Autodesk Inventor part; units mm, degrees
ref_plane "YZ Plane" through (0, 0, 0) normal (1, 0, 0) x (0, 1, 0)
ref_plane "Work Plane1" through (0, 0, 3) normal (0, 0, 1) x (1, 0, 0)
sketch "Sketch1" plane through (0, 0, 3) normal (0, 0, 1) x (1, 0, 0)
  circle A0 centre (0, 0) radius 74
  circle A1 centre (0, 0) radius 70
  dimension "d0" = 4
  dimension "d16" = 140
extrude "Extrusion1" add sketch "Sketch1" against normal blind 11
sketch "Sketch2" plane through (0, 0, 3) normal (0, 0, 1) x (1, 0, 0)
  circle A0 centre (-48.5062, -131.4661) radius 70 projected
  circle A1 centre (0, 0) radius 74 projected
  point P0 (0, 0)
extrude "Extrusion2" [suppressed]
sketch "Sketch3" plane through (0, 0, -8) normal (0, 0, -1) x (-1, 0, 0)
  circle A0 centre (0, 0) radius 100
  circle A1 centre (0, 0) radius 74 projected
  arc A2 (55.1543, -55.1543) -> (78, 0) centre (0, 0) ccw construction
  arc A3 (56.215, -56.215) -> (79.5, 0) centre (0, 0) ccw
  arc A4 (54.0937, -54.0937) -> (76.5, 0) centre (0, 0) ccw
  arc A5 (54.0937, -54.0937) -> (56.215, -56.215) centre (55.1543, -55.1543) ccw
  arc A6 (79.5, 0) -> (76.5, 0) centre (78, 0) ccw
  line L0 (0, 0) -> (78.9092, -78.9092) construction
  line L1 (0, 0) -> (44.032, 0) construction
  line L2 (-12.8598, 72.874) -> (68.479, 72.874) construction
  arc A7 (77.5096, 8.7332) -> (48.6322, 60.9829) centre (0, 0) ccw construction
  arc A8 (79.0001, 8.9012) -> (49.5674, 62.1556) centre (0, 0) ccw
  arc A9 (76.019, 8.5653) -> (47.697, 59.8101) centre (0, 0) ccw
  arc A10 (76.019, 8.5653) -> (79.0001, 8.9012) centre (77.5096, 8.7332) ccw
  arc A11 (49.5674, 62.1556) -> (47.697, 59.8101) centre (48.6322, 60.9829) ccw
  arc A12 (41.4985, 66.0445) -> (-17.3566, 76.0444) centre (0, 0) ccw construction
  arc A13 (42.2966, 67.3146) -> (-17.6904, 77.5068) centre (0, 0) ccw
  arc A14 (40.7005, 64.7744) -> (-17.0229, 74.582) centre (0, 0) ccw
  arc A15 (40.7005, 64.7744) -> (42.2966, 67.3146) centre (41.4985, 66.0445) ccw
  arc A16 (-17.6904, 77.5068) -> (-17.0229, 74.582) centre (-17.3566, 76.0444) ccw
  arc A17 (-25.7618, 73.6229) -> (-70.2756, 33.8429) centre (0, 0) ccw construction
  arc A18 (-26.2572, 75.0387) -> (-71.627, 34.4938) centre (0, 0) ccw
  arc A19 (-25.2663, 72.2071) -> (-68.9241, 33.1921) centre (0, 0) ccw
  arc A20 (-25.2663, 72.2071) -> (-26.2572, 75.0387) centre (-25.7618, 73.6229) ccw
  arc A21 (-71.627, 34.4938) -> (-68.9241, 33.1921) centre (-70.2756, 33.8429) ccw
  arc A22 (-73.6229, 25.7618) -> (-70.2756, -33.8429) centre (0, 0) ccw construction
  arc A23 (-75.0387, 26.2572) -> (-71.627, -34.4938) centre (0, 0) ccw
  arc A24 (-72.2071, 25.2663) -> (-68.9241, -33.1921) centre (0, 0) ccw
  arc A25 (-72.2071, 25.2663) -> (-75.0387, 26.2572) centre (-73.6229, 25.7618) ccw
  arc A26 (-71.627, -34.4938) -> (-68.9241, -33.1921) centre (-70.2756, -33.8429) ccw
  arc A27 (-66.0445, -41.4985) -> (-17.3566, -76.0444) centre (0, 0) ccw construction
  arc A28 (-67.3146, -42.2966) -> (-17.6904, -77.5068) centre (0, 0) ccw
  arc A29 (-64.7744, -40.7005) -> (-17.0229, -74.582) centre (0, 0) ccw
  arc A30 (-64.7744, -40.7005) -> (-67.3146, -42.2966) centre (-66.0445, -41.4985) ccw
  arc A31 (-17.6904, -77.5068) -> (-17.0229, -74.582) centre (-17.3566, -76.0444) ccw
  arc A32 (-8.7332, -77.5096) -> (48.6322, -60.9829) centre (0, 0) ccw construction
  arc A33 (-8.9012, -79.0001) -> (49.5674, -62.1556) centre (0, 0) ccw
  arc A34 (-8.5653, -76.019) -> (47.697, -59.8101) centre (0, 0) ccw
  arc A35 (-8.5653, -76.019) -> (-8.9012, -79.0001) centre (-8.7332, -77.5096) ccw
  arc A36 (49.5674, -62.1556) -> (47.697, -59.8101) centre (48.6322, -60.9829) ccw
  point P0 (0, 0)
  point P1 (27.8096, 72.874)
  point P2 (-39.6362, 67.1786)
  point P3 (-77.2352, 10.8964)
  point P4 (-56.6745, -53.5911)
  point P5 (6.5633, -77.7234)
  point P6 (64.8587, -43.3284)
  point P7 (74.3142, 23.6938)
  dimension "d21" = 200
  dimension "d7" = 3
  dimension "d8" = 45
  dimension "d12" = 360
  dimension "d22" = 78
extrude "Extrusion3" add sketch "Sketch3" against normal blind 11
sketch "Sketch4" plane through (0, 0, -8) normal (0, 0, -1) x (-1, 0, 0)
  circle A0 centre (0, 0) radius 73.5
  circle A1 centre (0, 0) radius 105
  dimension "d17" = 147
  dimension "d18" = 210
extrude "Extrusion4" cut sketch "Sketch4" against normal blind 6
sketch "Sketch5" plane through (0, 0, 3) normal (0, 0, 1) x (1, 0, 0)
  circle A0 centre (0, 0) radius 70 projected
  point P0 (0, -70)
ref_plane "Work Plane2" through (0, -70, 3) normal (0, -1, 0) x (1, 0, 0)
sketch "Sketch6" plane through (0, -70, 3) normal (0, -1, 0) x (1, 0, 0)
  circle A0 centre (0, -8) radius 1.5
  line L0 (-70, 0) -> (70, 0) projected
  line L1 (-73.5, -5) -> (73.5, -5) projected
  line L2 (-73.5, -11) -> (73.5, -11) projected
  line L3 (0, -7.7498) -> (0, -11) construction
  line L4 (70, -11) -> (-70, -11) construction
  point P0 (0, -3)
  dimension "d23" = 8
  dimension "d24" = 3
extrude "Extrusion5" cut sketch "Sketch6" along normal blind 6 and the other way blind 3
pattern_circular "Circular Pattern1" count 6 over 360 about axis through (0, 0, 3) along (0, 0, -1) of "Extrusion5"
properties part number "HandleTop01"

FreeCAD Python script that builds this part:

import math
import FreeCAD as App
import Part
import Sketcher

doc = App.newDocument("Part")
params = doc.addObject("Spreadsheet::Sheet", "Params")
for row, (alias, value) in enumerate([
    ("sketch1_diameter", "140 mm"),
    ("sketch1_diameter2", "148 mm"),
    ("pad1_length", "11 mm"),
    ("sketch2_diameter", "200 mm"),
    ("sketch2_radius", "1.5 mm"),
    ("sketch2_radius2", "1.5 mm"),
    ("sketch2_radius3", "1.5 mm"),
    ("sketch2_radius4", "1.5 mm"),
    ("pad2_length", "11 mm"),
    ("sketch3_diameter", "210 mm"),
    ("sketch3_diameter2", "147 mm"),
    ("pocket1_length", "6 mm"),
    ("sketch4_diameter", "3 mm"),
    ("pocket2_length", "6 mm"),
    ("pocket2_length2", "3 mm"),
], start=1):
    params.set(f"A{row}", alias)
    params.set(f"B{row}", "=" + value)
    params.setAlias(f"B{row}", alias)

body = doc.addObject("PartDesign::Body", "Body")

# Sketch on XY plane
sketch1 = body.newObject("Sketcher::SketchObject", "Sketch")
sketch1.AttachmentSupport = (doc.getObject("XY_Plane"), [""])
sketch1.MapMode = "FlatFace"
sketch1.AttachmentOffset = App.Placement(App.Vector(0, 0, 3), App.Rotation())
sketch1.addGeometry([
    Part.Circle(App.Vector(0, 0, 0), App.Vector(0, 0, 1), 74),
    Part.Circle(App.Vector(0, 0, 0), App.Vector(0, 0, 1), 70),
], False)
sketch1.addConstraint([
    Sketcher.Constraint("Coincident", 0, 3, -1, 1),
    Sketcher.Constraint("Coincident", 1, 3, -1, 1),
    Sketcher.Constraint("Diameter", 1, 140.0),
    Sketcher.Constraint("Diameter", 0, 148.0),
])
sketch1.setExpression("Constraints[2]", "Params.sketch1_diameter")
sketch1.setExpression("Constraints[3]", "Params.sketch1_diameter2")
pad1 = body.newObject("PartDesign::Pad", "Pad")
pad1.Profile = sketch1
pad1.setExpression("Length", "Params.pad1_length")
pad1.Reversed = True

# Sketch on XY plane
sketch2 = body.newObject("Sketcher::SketchObject", "Sketch001")
sketch2.AttachmentSupport = (doc.getObject("XY_Plane"), [""])
sketch2.MapMode = "FlatFace"
sketch2.AttachmentOffset = App.Placement(App.Vector(0, 0, -8), App.Rotation())
sketch2.addGeometry([
    Part.Circle(App.Vector(0, 0, 0), App.Vector(0, 0, 1), 100),  # 0
    Part.ArcOfCircle(Part.Circle(App.Vector(0, 0, 0), App.Vector(0, 0, 1), 79.499981), math.radians(-77.142872), math.radians(-32.142878)),  # 1
    Part.ArcOfCircle(Part.Circle(App.Vector(66.0445, -41.4985, 0), App.Vector(0, 0, 1), 1.499986), math.radians(-32.144257), math.radians(147.858977)),  # 2
    Part.ArcOfCircle(Part.Circle(App.Vector(0, 0, 0), App.Vector(0, 0, 1), 76.500044), math.radians(-77.142824), math.radians(-32.142887)),  # 3
    Part.ArcOfCircle(Part.Circle(App.Vector(17.3566, -76.0444, 0), App.Vector(0, 0, 1), 1.500012), math.radians(102.854042), math.radians(282.857766)),  # 4
    Part.ArcOfCircle(Part.Circle(App.Vector(0, 0, 0), App.Vector(0, 0, 1), 79.500049), math.radians(-25.714321), math.radians(19.28573)),  # 5
    Part.ArcOfCircle(Part.Circle(App.Vector(73.6229, 25.7618, 0), App.Vector(0, 0, 1), 1.500003), math.radians(19.285359), math.radians(199.288965)),  # 6
    Part.ArcOfCircle(Part.Circle(App.Vector(0, 0, 0), App.Vector(0, 0, 1), 76.500008), math.radians(-25.714288), math.radians(19.285674)),  # 7
    Part.ArcOfCircle(Part.Circle(App.Vector(70.2756, -33.8429, 0), App.Vector(0, 0, 1), 1.499984), math.radians(154.287369), math.radians(334.282271)),  # 8
    Part.ArcOfCircle(Part.Circle(App.Vector(0, 0, 0), App.Vector(0, 0, 1), 79.499981), math.radians(-128.571408), math.radians(-83.57141)),  # 9
    Part.ArcOfCircle(Part.Circle(App.Vector(8.7332, -77.5096, 0), App.Vector(0, 0, 1), 1.500026), math.radians(-83.569114), math.radians(96.426663)),  # 10
    Part.ArcOfCircle(Part.Circle(App.Vector(0, 0, 0), App.Vector(0, 0, 1), 76.500008), math.radians(-128.57145), math.radians(-83.571417)),  # 11
    Part.ArcOfCircle(Part.Circle(App.Vector(-48.6322, -60.9829, 0), App.Vector(0, 0, 1), 1.499941), math.radians(51.430865), math.radians(231.428483)),  # 12
    Part.ArcOfCircle(Part.Circle(App.Vector(0, 0, 0), App.Vector(0, 0, 1), 79.499981), math.radians(180), math.radians(225)),  # 13
    Part.ArcOfCircle(Part.Circle(App.Vector(-55.1543, -55.1543, 0), App.Vector(0, 0, 1), 1.499915), math.radians(-135), math.radians(45)),  # 14
    Part.ArcOfCircle(Part.Circle(App.Vector(0, 0, 0), App.Vector(0, 0, 1), 76.500008), math.radians(180), math.radians(225)),  # 15
    Part.ArcOfCircle(Part.Circle(App.Vector(-78, 0, 0), App.Vector(0, 0, 1), 1.5), math.radians(0), math.radians(180)),  # 16
    Part.ArcOfCircle(Part.Circle(App.Vector(0, 0, 0), App.Vector(0, 0, 1), 79.500049), math.radians(25.714321), math.radians(70.71427)),  # 17
    Part.ArcOfCircle(Part.Circle(App.Vector(25.7618, 73.6229, 0), App.Vector(0, 0, 1), 1.500003), math.radians(70.714641), math.radians(250.711035)),  # 18
    Part.ArcOfCircle(Part.Circle(App.Vector(0, 0, 0), App.Vector(0, 0, 1), 76.500008), math.radians(25.714288), math.radians(70.714326)),  # 19
    Part.ArcOfCircle(Part.Circle(App.Vector(70.2756, 33.8429, 0), App.Vector(0, 0, 1), 1.499984), math.radians(-154.287369), math.radians(25.717729)),  # 20
    Part.Circle(App.Vector(0, 0, 0), App.Vector(0, 0, 1), 74),  # 21
    Part.ArcOfCircle(Part.Circle(App.Vector(0, 0, 0), App.Vector(0, 0, 1), 79.499981), math.radians(128.571408), math.radians(173.57141)),  # 22
    Part.ArcOfCircle(Part.Circle(App.Vector(-77.5096, 8.7332, 0), App.Vector(0, 0, 1), 1.500026), math.radians(173.569114), math.radians(353.573337)),  # 23
    Part.ArcOfCircle(Part.Circle(App.Vector(0, 0, 0), App.Vector(0, 0, 1), 76.500008), math.radians(128.57145), math.radians(173.571417)),  # 24
    Part.ArcOfCircle(Part.Circle(App.Vector(-48.6322, 60.9829, 0), App.Vector(0, 0, 1), 1.499941), math.radians(-51.430865), math.radians(128.571517)),  # 25
    Part.ArcOfCircle(Part.Circle(App.Vector(0, 0, 0), App.Vector(0, 0, 1), 79.499981), math.radians(77.142872), math.radians(122.142878)),  # 26
    Part.ArcOfCircle(Part.Circle(App.Vector(-41.4985, 66.0445, 0), App.Vector(0, 0, 1), 1.499986), math.radians(122.144257), math.radians(302.141023)),  # 27
    Part.ArcOfCircle(Part.Circle(App.Vector(0, 0, 0), App.Vector(0, 0, 1), 76.500044), math.radians(77.142824), math.radians(122.142887)),  # 28
    Part.ArcOfCircle(Part.Circle(App.Vector(17.3566, 76.0444, 0), App.Vector(0, 0, 1), 1.500012), math.radians(-102.854042), math.radians(77.142234)),  # 29
], False)
sketch2.addConstraint([
    Sketcher.Constraint("Coincident", 1, 2, 2, 1),
    Sketcher.Constraint("Coincident", 2, 2, 3, 2),
    Sketcher.Constraint("Coincident", 3, 1, 4, 1),
    Sketcher.Constraint("Coincident", 4, 2, 1, 1),
    Sketcher.Constraint("Coincident", 5, 2, 6, 1),
    Sketcher.Constraint("Coincident", 6, 2, 7, 2),
    Sketcher.Constraint("Coincident", 7, 1, 8, 1),
    Sketcher.Constraint("Coincident", 8, 2, 5, 1),
    Sketcher.Constraint("Coincident", 9, 2, 10, 1),
    Sketcher.Constraint("Coincident", 10, 2, 11, 2),
    Sketcher.Constraint("Coincident", 11, 1, 12, 1),
    Sketcher.Constraint("Coincident", 12, 2, 9, 1),
    Sketcher.Constraint("Coincident", 13, 2, 14, 1),
    Sketcher.Constraint("Coincident", 14, 2, 15, 2),
    Sketcher.Constraint("Coincident", 15, 1, 16, 1),
    Sketcher.Constraint("Coincident", 16, 2, 13, 1),
    Sketcher.Constraint("Coincident", 17, 2, 18, 1),
    Sketcher.Constraint("Coincident", 18, 2, 19, 2),
    Sketcher.Constraint("Coincident", 19, 1, 20, 1),
    Sketcher.Constraint("Coincident", 20, 2, 17, 1),
    Sketcher.Constraint("Coincident", 22, 2, 23, 1),
    Sketcher.Constraint("Coincident", 23, 2, 24, 2),
    Sketcher.Constraint("Coincident", 24, 1, 25, 1),
    Sketcher.Constraint("Coincident", 25, 2, 22, 1),
    Sketcher.Constraint("Coincident", 26, 2, 27, 1),
    Sketcher.Constraint("Coincident", 27, 2, 28, 2),
    Sketcher.Constraint("Coincident", 28, 1, 29, 1),
    Sketcher.Constraint("Coincident", 29, 2, 26, 1),
    Sketcher.Constraint("Coincident", 0, 3, -1, 1),
    Sketcher.Constraint("Coincident", 1, 3, -1, 1),
    Sketcher.Constraint("Coincident", 3, 3, -1, 1),
    Sketcher.Constraint("Coincident", 5, 3, -1, 1),
    Sketcher.Constraint("Coincident", 7, 3, -1, 1),
    Sketcher.Constraint("Coincident", 9, 3, -1, 1),
    Sketcher.Constraint("Coincident", 11, 3, -1, 1),
    Sketcher.Constraint("Coincident", 13, 3, -1, 1),
    Sketcher.Constraint("Coincident", 15, 3, -1, 1),
    Sketcher.Constraint("Coincident", 17, 3, -1, 1),
    Sketcher.Constraint("Coincident", 19, 3, -1, 1),
    Sketcher.Constraint("Coincident", 21, 3, -1, 1),
    Sketcher.Constraint("Coincident", 22, 3, -1, 1),
    Sketcher.Constraint("Coincident", 24, 3, -1, 1),
    Sketcher.Constraint("Coincident", 26, 3, -1, 1),
    Sketcher.Constraint("Coincident", 28, 3, -1, 1),
    Sketcher.Constraint("PointOnObject", 16, 3, -1),
    Sketcher.Constraint("PointOnObject", 15, 1, -1),
    Sketcher.Constraint("PointOnObject", 16, 2, -1),
    Sketcher.Constraint("Diameter", 0, 200.0),
    Sketcher.Constraint("Radius", 2, 1.5),
    Sketcher.Constraint("Radius", 6, 1.5),
    Sketcher.Constraint("Radius", 10, 1.5),
    Sketcher.Constraint("Radius", 14, 1.5),
    Sketcher.Constraint("Radius", 18, 1.5),
    Sketcher.Constraint("Radius", 23, 1.5),
    Sketcher.Constraint("Radius", 27, 1.5),
    Sketcher.Constraint("Diameter", 21, 148.0),
    Sketcher.Constraint("DistanceX", 16, 3, -1, 1, 78.0),
    Sketcher.Constraint("Radius", 1, 79.5),
    Sketcher.Constraint("Radius", 5, 79.5),
    Sketcher.Constraint("Radius", 9, 79.5),
    Sketcher.Constraint("Radius", 17, 79.5),
    Sketcher.Constraint("Radius", 22, 79.5),
    Sketcher.Constraint("Radius", 26, 79.5),
    Sketcher.Constraint("DistanceY", 9, 2, -1, 1, 79.0),
    Sketcher.Constraint("DistanceX", 22, 2, -1, 1, 79.0),
    Sketcher.Constraint("DistanceY", 27, 3, 29, 3, 10.0),
    Sketcher.Constraint("DistanceY", 11, 1, -1, 1, 59.81),
    Sketcher.Constraint("DistanceY", -1, 1, 24, 1, 59.81),
    Sketcher.Constraint("DistanceY", 4, 3, 14, 3, 20.89),
    Sketcher.Constraint("DistanceY", 20, 3, 18, 3, 39.78),
    Sketcher.Constraint("DistanceY", 25, 3, 18, 3, 12.64),
    Sketcher.Constraint("DistanceX", 2, 3, 1, 2, 1.27),
    Sketcher.Constraint("DistanceX", 2, 2, 2, 3, 1.27),
    Sketcher.Constraint("DistanceX", 20, 2, 6, 2, 0.58),
    Sketcher.Constraint("DistanceY", 27, 3, 26, 2, 1.27),
    Sketcher.Constraint("DistanceY", 27, 2, 27, 3, 1.27),
    Sketcher.Constraint("DistanceX", -1, 1, 6, 3, 73.623),
    Sketcher.Constraint("DistanceY", 8, 3, -1, 1, 33.843),
    Sketcher.Constraint("DistanceY", 12, 3, -1, 1, 60.983),
    Sketcher.Constraint("DistanceY", -1, 1, 18, 3, 73.623),
    Sketcher.Constraint("DistanceX", -1, 1, 3, 1, 17.023),
    Sketcher.Constraint("DistanceX", -1, 1, 6, 2, 72.207),
    Sketcher.Constraint("DistanceY", 7, 1, -1, 1, 33.192),
    Sketcher.Constraint("DistanceX", -1, 1, 8, 2, 71.627),
    Sketcher.Constraint("DistanceY", 10, 2, -1, 1, 76.019),
    Sketcher.Constraint("DistanceX", 13, 2, -1, 1, 56.215),
    Sketcher.Constraint("DistanceY", -1, 1, 18, 2, 72.207),
    Sketcher.Constraint("DistanceY", -1, 1, 19, 1, 33.192),
    Sketcher.Constraint("DistanceX", 23, 2, -1, 1, 76.019),
    Sketcher.Constraint("DistanceX", -1, 1, 28, 1, 17.023),
    Sketcher.Constraint("DistanceX", 4, 3, 2, 3, 48.688),
    Sketcher.Constraint("DistanceY", 4, 3, 2, 3, 34.546),
    Sketcher.Constraint("DistanceY", 10, 3, 2, 3, 36.011),
    Sketcher.Constraint("DistanceY", 12, 3, 23, 3, 69.716),
    Sketcher.Constraint("DistanceX", 23, 3, 27, 3, 36.011),
    Sketcher.Constraint("DistanceX", 4, 2, 2, 2, 47.084),
    Sketcher.Constraint("DistanceX", 18, 3, 5, 2, 49.277),
    Sketcher.Constraint("DistanceX", 14, 3, 12, 2, 5.587),
    Sketcher.Constraint("DistanceY", 12, 2, 14, 2, 8.062),
    Sketcher.Constraint("DistanceY", 6, 3, 17, 2, 49.277),
    Sketcher.Constraint("DistanceX", 25, 2, 27, 3, 8.069),
    Sketcher.Constraint("DistanceY", 17, 2, 29, 2, 2.468),
])
sketch2.setExpression("Constraints[47]", "Params.sketch2_diameter")
sketch2.setExpression("Constraints[48]", "Params.sketch2_radius")
sketch2.setExpression("Constraints[49]", "Params.sketch2_radius2")
sketch2.setExpression("Constraints[50]", "Params.sketch2_radius3")
sketch2.setExpression("Constraints[51]", "Params.sketch2_radius4")
pad2 = body.newObject("PartDesign::Pad", "Pad001")
pad2.Profile = sketch2
pad2.setExpression("Length", "Params.pad2_length")

# Sketch on XY plane
sketch3 = body.newObject("Sketcher::SketchObject", "Sketch002")
sketch3.AttachmentSupport = (doc.getObject("XY_Plane"), [""])
sketch3.MapMode = "FlatFace"
sketch3.AttachmentOffset = App.Placement(App.Vector(0, 0, -8), App.Rotation())
sketch3.addGeometry([
    Part.Circle(App.Vector(0, 0, 0), App.Vector(0, 0, 1), 105),
    Part.Circle(App.Vector(0, 0, 0), App.Vector(0, 0, 1), 74),
], False)
sketch3.addConstraint([
    Sketcher.Constraint("Coincident", 0, 3, -1, 1),
    Sketcher.Constraint("Coincident", 1, 3, -1, 1),
    Sketcher.Constraint("Diameter", 0, 210.0),
    Sketcher.Constraint("Diameter", 1, 147.0),
])
sketch3.setExpression("Constraints[2]", "Params.sketch3_diameter")
sketch3.setExpression("Constraints[3]", "Params.sketch3_diameter2")
pocket1 = body.newObject("PartDesign::Pocket", "Pocket")
pocket1.Profile = sketch3
pocket1.setExpression("Length", "Params.pocket1_length")
pocket1.Reversed = True

# Sketch on XZ plane
sketch4 = body.newObject("Sketcher::SketchObject", "Sketch003")
sketch4.AttachmentSupport = (doc.getObject("XZ_Plane"), [""])
sketch4.MapMode = "FlatFace"
sketch4.AttachmentOffset = App.Placement(App.Vector(0, 0, 70), App.Rotation())
sketch4.addGeometry(Part.Circle(App.Vector(0, -5, 0), App.Vector(0, 0, 1), 1.5), False)
sketch4.addConstraint([
    Sketcher.Constraint("PointOnObject", 0, 3, -2),
    Sketcher.Constraint("Diameter", 0, 3.0),
    Sketcher.Constraint("DistanceY", 0, 3, -1, 1, 5.0),
])
sketch4.setExpression("Constraints[1]", "Params.sketch4_diameter")
pocket2 = body.newObject("PartDesign::Pocket", "Pocket001")
pocket2.Profile = sketch4
pocket2.Type = "TwoLengths"
pocket2.setExpression("Length", "Params.pocket2_length")
pocket2.setExpression("Length2", "Params.pocket2_length2")
pocket2.Reversed = True
doc.recompute()

polarpattern = body.newObject("PartDesign::PolarPattern", "PolarPattern")
polarpattern.Originals = [pocket2]
polarpattern.Axis = (doc.getObject("Z_Axis"), [""])
polarpattern.Angle = 360
polarpattern.Occurrences = 6
body.Tip = polarpattern

doc.recompute()
